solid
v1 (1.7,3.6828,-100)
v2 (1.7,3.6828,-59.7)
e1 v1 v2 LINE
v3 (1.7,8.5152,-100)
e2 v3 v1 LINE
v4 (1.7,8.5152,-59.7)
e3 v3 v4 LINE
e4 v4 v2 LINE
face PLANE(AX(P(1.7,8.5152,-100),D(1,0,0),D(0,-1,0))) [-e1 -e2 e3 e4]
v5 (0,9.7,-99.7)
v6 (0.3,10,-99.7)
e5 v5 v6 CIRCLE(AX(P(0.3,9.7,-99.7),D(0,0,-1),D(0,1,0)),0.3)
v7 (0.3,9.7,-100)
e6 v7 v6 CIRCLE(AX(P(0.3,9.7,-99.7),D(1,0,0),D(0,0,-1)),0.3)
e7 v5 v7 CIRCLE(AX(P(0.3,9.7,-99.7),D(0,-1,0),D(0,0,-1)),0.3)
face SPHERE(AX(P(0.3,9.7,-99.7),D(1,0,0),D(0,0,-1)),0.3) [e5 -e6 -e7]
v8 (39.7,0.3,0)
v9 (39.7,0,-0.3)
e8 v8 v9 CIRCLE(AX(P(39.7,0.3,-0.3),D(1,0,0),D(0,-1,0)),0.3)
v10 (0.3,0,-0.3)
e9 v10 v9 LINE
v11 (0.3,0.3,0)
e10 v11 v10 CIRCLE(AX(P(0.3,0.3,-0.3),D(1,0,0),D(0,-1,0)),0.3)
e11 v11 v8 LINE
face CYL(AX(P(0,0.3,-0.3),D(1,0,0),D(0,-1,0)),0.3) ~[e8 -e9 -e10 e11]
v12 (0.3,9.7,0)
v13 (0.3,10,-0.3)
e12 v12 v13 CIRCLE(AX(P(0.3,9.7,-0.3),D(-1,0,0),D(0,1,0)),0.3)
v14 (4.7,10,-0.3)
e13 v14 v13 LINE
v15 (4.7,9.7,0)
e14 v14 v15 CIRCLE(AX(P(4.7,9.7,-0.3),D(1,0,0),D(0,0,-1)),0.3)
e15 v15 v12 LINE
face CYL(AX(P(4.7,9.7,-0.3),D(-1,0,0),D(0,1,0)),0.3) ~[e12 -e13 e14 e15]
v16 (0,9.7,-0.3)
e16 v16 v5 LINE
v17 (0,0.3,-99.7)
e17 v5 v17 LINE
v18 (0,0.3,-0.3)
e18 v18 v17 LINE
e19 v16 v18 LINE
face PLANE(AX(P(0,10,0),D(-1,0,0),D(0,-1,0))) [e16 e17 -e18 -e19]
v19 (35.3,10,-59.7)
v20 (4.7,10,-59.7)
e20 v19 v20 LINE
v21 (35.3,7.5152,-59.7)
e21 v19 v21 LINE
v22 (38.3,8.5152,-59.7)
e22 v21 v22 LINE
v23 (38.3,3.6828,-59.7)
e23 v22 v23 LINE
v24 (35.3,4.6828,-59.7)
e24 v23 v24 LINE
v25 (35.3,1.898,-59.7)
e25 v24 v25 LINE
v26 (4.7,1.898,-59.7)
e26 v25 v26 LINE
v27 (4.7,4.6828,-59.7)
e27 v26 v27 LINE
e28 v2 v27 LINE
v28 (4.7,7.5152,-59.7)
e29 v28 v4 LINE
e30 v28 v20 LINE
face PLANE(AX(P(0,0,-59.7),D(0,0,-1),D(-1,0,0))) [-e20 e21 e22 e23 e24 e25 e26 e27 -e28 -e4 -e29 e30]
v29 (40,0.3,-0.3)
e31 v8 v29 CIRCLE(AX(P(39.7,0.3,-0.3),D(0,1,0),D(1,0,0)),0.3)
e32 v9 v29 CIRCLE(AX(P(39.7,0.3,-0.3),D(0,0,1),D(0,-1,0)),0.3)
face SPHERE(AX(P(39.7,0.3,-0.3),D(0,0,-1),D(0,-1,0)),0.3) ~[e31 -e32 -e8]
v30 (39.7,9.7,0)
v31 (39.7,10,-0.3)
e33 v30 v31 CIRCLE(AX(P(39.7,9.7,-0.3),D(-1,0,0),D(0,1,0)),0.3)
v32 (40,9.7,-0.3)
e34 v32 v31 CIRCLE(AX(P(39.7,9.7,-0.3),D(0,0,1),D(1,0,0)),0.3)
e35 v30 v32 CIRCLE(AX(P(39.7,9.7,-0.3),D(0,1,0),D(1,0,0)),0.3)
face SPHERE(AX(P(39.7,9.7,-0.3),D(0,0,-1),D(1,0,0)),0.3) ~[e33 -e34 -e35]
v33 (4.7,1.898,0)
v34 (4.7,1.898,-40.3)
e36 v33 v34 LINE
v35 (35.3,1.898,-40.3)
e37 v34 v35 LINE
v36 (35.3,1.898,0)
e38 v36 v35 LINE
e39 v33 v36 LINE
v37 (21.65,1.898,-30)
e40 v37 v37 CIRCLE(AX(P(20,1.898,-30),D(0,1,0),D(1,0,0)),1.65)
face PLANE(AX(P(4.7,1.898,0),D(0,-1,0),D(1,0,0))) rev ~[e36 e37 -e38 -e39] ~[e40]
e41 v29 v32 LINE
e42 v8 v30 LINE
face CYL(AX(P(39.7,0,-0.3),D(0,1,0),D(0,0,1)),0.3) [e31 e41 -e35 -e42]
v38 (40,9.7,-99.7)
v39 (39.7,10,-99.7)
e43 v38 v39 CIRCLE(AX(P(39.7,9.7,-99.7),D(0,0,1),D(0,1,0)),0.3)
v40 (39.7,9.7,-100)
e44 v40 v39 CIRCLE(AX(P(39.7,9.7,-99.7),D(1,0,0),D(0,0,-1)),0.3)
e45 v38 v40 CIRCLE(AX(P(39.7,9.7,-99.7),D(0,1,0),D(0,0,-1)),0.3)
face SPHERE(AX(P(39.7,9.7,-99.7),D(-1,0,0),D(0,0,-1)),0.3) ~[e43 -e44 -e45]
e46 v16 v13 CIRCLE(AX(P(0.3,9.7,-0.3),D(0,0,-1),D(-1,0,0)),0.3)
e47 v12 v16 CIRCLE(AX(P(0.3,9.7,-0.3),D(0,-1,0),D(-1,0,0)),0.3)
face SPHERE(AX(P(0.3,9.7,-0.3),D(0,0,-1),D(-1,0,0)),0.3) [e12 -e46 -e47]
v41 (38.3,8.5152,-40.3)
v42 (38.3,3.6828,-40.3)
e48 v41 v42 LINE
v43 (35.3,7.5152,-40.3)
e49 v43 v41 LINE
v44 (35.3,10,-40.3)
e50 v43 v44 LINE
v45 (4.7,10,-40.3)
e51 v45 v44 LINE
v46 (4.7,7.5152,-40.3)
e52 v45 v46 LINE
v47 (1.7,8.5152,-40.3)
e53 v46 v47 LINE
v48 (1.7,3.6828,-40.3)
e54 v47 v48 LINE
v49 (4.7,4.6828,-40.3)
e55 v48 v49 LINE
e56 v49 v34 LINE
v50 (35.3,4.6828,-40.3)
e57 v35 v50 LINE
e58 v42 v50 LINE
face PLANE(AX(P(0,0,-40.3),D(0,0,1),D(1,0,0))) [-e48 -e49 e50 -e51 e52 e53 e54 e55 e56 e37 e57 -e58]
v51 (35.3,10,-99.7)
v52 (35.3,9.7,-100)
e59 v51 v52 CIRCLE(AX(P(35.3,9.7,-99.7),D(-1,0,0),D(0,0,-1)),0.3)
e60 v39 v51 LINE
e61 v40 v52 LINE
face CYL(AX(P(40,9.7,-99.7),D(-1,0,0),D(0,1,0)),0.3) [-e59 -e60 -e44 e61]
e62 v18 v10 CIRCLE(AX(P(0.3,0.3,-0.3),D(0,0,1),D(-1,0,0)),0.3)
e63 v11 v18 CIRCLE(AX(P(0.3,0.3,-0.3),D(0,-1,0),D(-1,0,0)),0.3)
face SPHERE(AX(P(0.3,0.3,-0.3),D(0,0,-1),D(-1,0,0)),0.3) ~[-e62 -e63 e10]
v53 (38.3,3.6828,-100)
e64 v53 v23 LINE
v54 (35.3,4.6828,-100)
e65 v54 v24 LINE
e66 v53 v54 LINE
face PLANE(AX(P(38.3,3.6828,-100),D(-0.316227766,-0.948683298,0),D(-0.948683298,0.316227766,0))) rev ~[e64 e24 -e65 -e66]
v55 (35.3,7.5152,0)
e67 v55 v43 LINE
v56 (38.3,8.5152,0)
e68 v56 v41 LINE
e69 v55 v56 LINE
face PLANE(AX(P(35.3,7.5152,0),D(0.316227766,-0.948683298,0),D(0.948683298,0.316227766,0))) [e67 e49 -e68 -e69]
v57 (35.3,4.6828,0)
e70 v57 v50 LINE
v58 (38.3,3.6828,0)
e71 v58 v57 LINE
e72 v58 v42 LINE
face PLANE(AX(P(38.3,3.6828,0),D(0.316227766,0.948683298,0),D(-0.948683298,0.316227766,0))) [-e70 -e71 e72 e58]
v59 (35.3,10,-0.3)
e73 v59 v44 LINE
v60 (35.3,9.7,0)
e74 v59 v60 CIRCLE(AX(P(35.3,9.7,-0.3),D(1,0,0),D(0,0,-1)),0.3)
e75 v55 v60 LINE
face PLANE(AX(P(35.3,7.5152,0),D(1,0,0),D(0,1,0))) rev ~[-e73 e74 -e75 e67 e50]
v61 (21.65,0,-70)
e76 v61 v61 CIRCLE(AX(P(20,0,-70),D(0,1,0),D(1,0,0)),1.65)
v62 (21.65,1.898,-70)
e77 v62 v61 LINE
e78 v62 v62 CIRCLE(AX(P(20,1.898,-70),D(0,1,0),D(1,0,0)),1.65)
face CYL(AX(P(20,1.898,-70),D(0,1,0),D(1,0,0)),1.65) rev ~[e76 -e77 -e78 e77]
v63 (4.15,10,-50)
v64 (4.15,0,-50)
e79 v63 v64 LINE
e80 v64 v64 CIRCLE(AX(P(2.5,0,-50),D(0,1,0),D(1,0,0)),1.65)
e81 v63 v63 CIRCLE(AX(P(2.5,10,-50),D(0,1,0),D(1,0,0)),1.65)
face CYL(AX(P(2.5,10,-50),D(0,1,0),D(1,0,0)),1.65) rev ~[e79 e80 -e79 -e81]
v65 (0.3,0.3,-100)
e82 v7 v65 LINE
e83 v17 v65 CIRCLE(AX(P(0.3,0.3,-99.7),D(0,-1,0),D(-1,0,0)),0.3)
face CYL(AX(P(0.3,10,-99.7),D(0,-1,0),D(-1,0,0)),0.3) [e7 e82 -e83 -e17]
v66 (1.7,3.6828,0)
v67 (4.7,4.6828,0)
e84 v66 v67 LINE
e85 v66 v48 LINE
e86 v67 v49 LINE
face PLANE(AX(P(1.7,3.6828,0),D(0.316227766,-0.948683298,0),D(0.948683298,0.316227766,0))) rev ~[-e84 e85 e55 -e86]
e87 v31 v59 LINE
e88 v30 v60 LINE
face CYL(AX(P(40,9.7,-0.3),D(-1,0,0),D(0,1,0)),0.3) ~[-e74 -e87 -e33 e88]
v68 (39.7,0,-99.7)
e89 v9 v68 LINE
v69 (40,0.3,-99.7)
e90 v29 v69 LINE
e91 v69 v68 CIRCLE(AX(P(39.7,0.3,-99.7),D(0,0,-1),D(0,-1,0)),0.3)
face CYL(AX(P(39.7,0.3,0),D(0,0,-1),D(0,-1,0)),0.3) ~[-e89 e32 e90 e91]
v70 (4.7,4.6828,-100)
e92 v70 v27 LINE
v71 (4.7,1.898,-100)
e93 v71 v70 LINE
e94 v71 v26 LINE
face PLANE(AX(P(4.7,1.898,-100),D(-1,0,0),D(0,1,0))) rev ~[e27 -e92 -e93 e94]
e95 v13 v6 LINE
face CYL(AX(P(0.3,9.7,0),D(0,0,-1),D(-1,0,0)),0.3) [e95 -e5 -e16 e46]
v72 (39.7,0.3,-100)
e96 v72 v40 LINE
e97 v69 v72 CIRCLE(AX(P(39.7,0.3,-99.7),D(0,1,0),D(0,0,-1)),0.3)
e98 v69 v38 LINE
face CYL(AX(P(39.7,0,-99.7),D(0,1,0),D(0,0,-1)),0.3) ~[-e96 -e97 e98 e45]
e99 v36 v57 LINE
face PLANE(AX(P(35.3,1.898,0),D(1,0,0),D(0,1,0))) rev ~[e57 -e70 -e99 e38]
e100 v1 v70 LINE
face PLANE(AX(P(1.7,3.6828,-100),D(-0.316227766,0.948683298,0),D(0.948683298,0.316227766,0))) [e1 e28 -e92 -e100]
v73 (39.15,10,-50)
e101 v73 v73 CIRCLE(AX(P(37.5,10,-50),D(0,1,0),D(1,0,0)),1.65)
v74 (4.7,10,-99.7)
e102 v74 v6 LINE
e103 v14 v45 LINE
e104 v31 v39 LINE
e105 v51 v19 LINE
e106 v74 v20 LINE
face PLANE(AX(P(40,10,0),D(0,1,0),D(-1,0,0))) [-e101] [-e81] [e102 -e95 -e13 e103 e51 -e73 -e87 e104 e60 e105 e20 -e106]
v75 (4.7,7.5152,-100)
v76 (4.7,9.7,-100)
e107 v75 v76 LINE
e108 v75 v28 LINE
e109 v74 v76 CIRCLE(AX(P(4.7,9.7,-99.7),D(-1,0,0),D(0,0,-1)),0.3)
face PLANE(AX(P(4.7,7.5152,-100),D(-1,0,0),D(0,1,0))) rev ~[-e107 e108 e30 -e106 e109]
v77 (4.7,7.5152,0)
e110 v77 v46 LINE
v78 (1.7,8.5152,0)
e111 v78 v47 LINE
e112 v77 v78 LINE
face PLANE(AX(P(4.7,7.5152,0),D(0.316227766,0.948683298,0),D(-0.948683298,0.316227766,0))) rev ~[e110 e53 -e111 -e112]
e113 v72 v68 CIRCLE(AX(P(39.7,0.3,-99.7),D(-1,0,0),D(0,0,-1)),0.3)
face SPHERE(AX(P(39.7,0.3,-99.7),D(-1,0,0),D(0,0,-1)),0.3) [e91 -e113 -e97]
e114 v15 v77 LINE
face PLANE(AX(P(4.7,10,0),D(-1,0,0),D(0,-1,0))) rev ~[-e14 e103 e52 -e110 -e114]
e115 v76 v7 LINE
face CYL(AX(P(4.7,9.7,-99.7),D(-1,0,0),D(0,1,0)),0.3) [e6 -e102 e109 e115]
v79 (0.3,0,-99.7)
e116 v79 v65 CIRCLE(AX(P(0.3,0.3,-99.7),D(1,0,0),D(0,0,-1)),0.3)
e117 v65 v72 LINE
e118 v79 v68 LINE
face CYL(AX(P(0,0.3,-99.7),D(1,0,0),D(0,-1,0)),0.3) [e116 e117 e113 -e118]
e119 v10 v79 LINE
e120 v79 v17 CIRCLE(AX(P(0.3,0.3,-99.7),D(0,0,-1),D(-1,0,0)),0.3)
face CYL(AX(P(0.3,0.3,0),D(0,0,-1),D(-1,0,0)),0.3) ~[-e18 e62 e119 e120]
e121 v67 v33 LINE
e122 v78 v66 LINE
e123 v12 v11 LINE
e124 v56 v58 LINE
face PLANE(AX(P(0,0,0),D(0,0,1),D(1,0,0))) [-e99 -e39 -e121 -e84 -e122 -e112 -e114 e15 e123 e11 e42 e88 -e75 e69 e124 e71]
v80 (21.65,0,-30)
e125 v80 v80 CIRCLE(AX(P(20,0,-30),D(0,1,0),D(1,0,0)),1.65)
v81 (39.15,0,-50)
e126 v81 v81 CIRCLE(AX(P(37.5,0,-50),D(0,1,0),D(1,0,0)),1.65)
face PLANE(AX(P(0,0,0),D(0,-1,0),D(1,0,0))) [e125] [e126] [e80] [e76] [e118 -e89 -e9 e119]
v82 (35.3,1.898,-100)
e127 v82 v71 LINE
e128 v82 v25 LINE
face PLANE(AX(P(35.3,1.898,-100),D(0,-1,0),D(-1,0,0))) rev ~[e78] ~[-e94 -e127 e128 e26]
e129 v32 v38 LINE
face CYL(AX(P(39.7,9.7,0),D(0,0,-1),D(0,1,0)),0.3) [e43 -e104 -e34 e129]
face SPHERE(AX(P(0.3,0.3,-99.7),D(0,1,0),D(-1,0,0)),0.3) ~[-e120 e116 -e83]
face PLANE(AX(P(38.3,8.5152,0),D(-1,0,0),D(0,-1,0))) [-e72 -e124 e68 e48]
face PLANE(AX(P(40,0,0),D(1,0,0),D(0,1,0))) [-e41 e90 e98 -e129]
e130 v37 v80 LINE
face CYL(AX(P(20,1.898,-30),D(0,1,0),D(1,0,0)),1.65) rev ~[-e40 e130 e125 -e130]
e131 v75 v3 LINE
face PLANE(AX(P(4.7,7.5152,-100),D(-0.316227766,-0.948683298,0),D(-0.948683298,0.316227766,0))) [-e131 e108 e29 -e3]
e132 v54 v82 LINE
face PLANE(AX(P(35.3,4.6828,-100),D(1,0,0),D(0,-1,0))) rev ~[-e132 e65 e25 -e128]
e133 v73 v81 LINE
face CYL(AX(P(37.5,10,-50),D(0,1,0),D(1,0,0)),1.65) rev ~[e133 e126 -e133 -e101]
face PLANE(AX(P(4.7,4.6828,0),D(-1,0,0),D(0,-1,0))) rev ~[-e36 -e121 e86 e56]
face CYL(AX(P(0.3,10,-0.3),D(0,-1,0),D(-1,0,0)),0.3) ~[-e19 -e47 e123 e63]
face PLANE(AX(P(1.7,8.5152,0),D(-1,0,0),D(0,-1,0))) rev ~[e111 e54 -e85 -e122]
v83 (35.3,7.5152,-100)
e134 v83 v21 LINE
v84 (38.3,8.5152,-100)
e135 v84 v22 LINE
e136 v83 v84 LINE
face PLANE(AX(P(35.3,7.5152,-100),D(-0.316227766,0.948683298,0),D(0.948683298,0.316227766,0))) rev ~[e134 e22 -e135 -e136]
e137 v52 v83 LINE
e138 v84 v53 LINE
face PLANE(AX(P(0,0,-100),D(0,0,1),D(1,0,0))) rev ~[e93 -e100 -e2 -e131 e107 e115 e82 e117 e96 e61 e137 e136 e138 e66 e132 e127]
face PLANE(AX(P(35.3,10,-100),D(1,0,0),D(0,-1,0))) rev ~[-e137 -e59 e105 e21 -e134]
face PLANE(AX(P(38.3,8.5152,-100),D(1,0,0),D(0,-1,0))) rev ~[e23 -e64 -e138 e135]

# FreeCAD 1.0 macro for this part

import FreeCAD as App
import Part
import Sketcher
from FreeCAD import Vector


def edges_at(feature, points):
    """Names of the edges that pass closest to the given points."""
    edges = feature.Shape.Edges
    near = lambda p: min(range(len(edges)), key=lambda i: edges[i].distToShape(Part.Vertex(*p))[0])
    return sorted({f"Edge{near(p) + 1}" for p in points})


def add_polygon(sketch, points):
    """Adds a closed chain of lines whose ends are joined by coincident constraints."""
    first, n = sketch.GeometryCount, len(points)
    for a, b in zip(points, points[1:] + points[:1]):
        sketch.addGeometry(Part.LineSegment(App.Vector(*a, 0), App.Vector(*b, 0)), False)
    for i in range(n):
        sketch.addConstraint(Sketcher.Constraint("Coincident", first + i, 2, first + (i + 1) % n, 1))

doc = App.newDocument("Part")
body = doc.addObject("PartDesign::Body", "Body")

# Sketch on XY plane
sketch1 = body.newObject("Sketcher::SketchObject", "Sketch")
sketch1.AttachmentSupport = (doc.getObject("XY_Plane"), [""])
sketch1.MapMode = "FlatFace"
add_polygon(sketch1, [(0, 10), (0, 0), (40, 0), (40, 10)])  # lines 0-3
sketch1.addConstraint([
    Sketcher.Constraint("Vertical", 0),
    Sketcher.Constraint("Horizontal", 1),
    Sketcher.Constraint("Vertical", 2),
    Sketcher.Constraint("Horizontal", 3),
    Sketcher.Constraint("Coincident", 0, 2, -1, 1),
    Sketcher.Constraint("DistanceX", 1, 1, 1, 2, 40.0),
    Sketcher.Constraint("DistanceY", 0, 2, 0, 1, 10.0),
])
pad1 = body.newObject("PartDesign::Pad", "Pad")
pad1.Profile = sketch1
pad1.Length = 100
pad1.Reversed = True

# Sketch on XY plane
sketch2 = body.newObject("Sketcher::SketchObject", "Sketch001")
sketch2.AttachmentSupport = (doc.getObject("XY_Plane"), [""])
sketch2.MapMode = "FlatFace"
add_polygon(sketch2, [(4.7, 4.7), (4.7, 1.9), (35.3, 1.9), (35.3, 4.7), (38.3, 3.7), (38.3, 8.5), (35.3, 7.5), (35.3, 10), (4.7, 10), (4.7, 7.5), (1.7, 8.5), (1.7, 3.7)])  # lines 0-11
sketch2.addConstraint([
    Sketcher.Constraint("Vertical", 0),
    Sketcher.Constraint("Horizontal", 1),
    Sketcher.Constraint("Vertical", 2),
    Sketcher.Constraint("Vertical", 4),
    Sketcher.Constraint("Vertical", 6),
    Sketcher.Constraint("Horizontal", 7),
    Sketcher.Constraint("Vertical", 8),
    Sketcher.Constraint("Vertical", 10),
    Sketcher.Constraint("Parallel", 3, 9),
    Sketcher.Constraint("Parallel", 5, 11),
    Sketcher.Constraint("Horizontal", 5, 2, 8, 2),
    Sketcher.Constraint("Horizontal", 4, 2, 9, 2),
    Sketcher.Constraint("Horizontal", 3, 2, 10, 2),
    Sketcher.Constraint("Horizontal", 2, 2, 11, 2),
    Sketcher.Constraint("Vertical", 2, 2, 5, 2),
    Sketcher.Constraint("Vertical", 0, 2, 7, 2),
    Sketcher.Constraint("DistanceX", 1, 1, 1, 2, 30.6),
    Sketcher.Constraint("DistanceY", -1, 1, 6, 2, 10.0),
    Sketcher.Constraint("DistanceX", 2, 2, 3, 2, 3.0),
    Sketcher.Constraint("DistanceY", 3, 2, 2, 2, 1.0),
    Sketcher.Constraint("DistanceX", -1, 1, 0, 2, 4.7),
    Sketcher.Constraint("DistanceY", 0, 2, 0, 1, 2.7848),
    Sketcher.Constraint("DistanceY", 4, 1, 4, 2, 4.8324),
    Sketcher.Constraint("DistanceY", 6, 1, 6, 2, 2.4848),
])
pocket1 = body.newObject("PartDesign::Pocket", "Pocket")
pocket1.Profile = sketch2
pocket1.Length = 40.3

# Sketch on XY plane
sketch3 = body.newObject("Sketcher::SketchObject", "Sketch002")
sketch3.AttachmentSupport = (doc.getObject("XY_Plane"), [""])
sketch3.MapMode = "FlatFace"
sketch3.AttachmentOffset = App.Placement(Vector(0, 0, -100), App.Rotation())
add_polygon(sketch3, [(35.3, 4.7), (35.3, 1.9), (4.7, 1.9), (4.7, 4.7), (1.7, 3.7), (1.7, 8.5), (4.7, 7.5), (4.7, 10), (35.3, 10), (35.3, 7.5), (38.3, 8.5), (38.3, 3.7)])  # lines 0-11
sketch3.addConstraint([
    Sketcher.Constraint("Vertical", 0),
    Sketcher.Constraint("Horizontal", 1),
    Sketcher.Constraint("Vertical", 2),
    Sketcher.Constraint("Vertical", 4),
    Sketcher.Constraint("Vertical", 6),
    Sketcher.Constraint("Horizontal", 7),
    Sketcher.Constraint("Vertical", 8),
    Sketcher.Constraint("Vertical", 10),
    Sketcher.Constraint("Parallel", 3, 9),
    Sketcher.Constraint("Parallel", 5, 11),
    Sketcher.Constraint("Horizontal", 5, 2, 8, 2),
    Sketcher.Constraint("Horizontal", 4, 2, 9, 2),
    Sketcher.Constraint("Horizontal", 3, 2, 10, 2),
    Sketcher.Constraint("Horizontal", 2, 2, 11, 2),
    Sketcher.Constraint("Vertical", 2, 2, 5, 2),
    Sketcher.Constraint("Vertical", 0, 2, 7, 2),
    Sketcher.Constraint("DistanceX", 1, 2, 1, 1, 30.6),
    Sketcher.Constraint("DistanceY", -1, 1, 6, 2, 10.0),
    Sketcher.Constraint("DistanceX", 3, 2, 2, 2, 3.0),
    Sketcher.Constraint("DistanceY", 3, 2, 2, 2, 1.0),
    Sketcher.Constraint("DistanceX", -1, 1, 0, 2, 35.3),
    Sketcher.Constraint("DistanceY", 0, 2, 0, 1, 2.7848),
    Sketcher.Constraint("DistanceY", 4, 1, 4, 2, 4.8324),
    Sketcher.Constraint("DistanceY", 6, 1, 6, 2, 2.4848),
])
pocket2 = body.newObject("PartDesign::Pocket", "Pocket001")
pocket2.Profile = sketch3
pocket2.Length = 40.3
pocket2.Reversed = True

# Sketch on XZ plane
sketch4 = body.newObject("Sketcher::SketchObject", "Sketch003")
sketch4.AttachmentSupport = (doc.getObject("XZ_Plane"), [""])
sketch4.MapMode = "FlatFace"
sketch4.AttachmentOffset = App.Placement(Vector(0, 0, -1.898), App.Rotation())
sketch4.addGeometry([
    Part.Circle(Vector(20, -30, 0), Vector(0, 0, 1), 1.6),
    Part.Circle(Vector(20, -70, 0), Vector(0, 0, 1), 1.6),
], False)
sketch4.addConstraint([
    Sketcher.Constraint("Equal", 0, 1),
    Sketcher.Constraint("Vertical", 0, 3, 1, 3),
    Sketcher.Constraint("Diameter", 0, 3.3),
    Sketcher.Constraint("DistanceX", -1, 1, 0, 3, 20.0),
    Sketcher.Constraint("DistanceY", 0, 3, -1, 1, 30.0),
    Sketcher.Constraint("DistanceY", 1, 3, -1, 1, 70.0),
])
pocket3 = body.newObject("PartDesign::Pocket", "Pocket002")
pocket3.Profile = sketch4
pocket3.Length = 5
pocket3.Reversed = True
doc.recompute()

fillet = body.newObject("PartDesign::Fillet", "Fillet")
fillet.Base = (pocket3, edges_at(pocket3, [
    (2.35, 10, -100),
    (37.65, 10, -100),
    (0, 5, -100),
    (0, 10, -50),
    (0, 0, -50),
    (20, 0, -100),
    (40, 5, -100),
    (0, 5, 0),
    (40, 10, -50),
    (40, 0, -50),
    (20, 0, 0),
    (40, 5, 0),
    (2.35, 10, 0),
    (37.65, 10, 0),
]))
fillet.Radius = 0.3

# Sketch on XZ plane
sketch5 = body.newObject("Sketcher::SketchObject", "Sketch004")
sketch5.AttachmentSupport = (doc.getObject("XZ_Plane"), [""])
sketch5.MapMode = "FlatFace"
sketch5.AttachmentOffset = App.Placement(Vector(0, 0, -10), App.Rotation())
sketch5.addGeometry([
    Part.Circle(Vector(37.5, -50, 0), Vector(0, 0, 1), 1.6),
    Part.Circle(Vector(2.5, -50, 0), Vector(0, 0, 1), 1.6),
], False)
sketch5.addConstraint([
    Sketcher.Constraint("Equal", 0, 1),
    Sketcher.Constraint("Horizontal", 0, 3, 1, 3),
    Sketcher.Constraint("Diameter", 0, 3.3),
    Sketcher.Constraint("DistanceY", 0, 3, -1, 1, 50.0),
    Sketcher.Constraint("DistanceX", 1, 3, 0, 3, 35.0),
    Sketcher.Constraint("DistanceX", -1, 1, 0, 3, 37.5),
])
pocket4 = body.newObject("PartDesign::Pocket", "Pocket003")
pocket4.Profile = sketch5
pocket4.Length = 10
pocket4.Reversed = True

doc.recompute()
